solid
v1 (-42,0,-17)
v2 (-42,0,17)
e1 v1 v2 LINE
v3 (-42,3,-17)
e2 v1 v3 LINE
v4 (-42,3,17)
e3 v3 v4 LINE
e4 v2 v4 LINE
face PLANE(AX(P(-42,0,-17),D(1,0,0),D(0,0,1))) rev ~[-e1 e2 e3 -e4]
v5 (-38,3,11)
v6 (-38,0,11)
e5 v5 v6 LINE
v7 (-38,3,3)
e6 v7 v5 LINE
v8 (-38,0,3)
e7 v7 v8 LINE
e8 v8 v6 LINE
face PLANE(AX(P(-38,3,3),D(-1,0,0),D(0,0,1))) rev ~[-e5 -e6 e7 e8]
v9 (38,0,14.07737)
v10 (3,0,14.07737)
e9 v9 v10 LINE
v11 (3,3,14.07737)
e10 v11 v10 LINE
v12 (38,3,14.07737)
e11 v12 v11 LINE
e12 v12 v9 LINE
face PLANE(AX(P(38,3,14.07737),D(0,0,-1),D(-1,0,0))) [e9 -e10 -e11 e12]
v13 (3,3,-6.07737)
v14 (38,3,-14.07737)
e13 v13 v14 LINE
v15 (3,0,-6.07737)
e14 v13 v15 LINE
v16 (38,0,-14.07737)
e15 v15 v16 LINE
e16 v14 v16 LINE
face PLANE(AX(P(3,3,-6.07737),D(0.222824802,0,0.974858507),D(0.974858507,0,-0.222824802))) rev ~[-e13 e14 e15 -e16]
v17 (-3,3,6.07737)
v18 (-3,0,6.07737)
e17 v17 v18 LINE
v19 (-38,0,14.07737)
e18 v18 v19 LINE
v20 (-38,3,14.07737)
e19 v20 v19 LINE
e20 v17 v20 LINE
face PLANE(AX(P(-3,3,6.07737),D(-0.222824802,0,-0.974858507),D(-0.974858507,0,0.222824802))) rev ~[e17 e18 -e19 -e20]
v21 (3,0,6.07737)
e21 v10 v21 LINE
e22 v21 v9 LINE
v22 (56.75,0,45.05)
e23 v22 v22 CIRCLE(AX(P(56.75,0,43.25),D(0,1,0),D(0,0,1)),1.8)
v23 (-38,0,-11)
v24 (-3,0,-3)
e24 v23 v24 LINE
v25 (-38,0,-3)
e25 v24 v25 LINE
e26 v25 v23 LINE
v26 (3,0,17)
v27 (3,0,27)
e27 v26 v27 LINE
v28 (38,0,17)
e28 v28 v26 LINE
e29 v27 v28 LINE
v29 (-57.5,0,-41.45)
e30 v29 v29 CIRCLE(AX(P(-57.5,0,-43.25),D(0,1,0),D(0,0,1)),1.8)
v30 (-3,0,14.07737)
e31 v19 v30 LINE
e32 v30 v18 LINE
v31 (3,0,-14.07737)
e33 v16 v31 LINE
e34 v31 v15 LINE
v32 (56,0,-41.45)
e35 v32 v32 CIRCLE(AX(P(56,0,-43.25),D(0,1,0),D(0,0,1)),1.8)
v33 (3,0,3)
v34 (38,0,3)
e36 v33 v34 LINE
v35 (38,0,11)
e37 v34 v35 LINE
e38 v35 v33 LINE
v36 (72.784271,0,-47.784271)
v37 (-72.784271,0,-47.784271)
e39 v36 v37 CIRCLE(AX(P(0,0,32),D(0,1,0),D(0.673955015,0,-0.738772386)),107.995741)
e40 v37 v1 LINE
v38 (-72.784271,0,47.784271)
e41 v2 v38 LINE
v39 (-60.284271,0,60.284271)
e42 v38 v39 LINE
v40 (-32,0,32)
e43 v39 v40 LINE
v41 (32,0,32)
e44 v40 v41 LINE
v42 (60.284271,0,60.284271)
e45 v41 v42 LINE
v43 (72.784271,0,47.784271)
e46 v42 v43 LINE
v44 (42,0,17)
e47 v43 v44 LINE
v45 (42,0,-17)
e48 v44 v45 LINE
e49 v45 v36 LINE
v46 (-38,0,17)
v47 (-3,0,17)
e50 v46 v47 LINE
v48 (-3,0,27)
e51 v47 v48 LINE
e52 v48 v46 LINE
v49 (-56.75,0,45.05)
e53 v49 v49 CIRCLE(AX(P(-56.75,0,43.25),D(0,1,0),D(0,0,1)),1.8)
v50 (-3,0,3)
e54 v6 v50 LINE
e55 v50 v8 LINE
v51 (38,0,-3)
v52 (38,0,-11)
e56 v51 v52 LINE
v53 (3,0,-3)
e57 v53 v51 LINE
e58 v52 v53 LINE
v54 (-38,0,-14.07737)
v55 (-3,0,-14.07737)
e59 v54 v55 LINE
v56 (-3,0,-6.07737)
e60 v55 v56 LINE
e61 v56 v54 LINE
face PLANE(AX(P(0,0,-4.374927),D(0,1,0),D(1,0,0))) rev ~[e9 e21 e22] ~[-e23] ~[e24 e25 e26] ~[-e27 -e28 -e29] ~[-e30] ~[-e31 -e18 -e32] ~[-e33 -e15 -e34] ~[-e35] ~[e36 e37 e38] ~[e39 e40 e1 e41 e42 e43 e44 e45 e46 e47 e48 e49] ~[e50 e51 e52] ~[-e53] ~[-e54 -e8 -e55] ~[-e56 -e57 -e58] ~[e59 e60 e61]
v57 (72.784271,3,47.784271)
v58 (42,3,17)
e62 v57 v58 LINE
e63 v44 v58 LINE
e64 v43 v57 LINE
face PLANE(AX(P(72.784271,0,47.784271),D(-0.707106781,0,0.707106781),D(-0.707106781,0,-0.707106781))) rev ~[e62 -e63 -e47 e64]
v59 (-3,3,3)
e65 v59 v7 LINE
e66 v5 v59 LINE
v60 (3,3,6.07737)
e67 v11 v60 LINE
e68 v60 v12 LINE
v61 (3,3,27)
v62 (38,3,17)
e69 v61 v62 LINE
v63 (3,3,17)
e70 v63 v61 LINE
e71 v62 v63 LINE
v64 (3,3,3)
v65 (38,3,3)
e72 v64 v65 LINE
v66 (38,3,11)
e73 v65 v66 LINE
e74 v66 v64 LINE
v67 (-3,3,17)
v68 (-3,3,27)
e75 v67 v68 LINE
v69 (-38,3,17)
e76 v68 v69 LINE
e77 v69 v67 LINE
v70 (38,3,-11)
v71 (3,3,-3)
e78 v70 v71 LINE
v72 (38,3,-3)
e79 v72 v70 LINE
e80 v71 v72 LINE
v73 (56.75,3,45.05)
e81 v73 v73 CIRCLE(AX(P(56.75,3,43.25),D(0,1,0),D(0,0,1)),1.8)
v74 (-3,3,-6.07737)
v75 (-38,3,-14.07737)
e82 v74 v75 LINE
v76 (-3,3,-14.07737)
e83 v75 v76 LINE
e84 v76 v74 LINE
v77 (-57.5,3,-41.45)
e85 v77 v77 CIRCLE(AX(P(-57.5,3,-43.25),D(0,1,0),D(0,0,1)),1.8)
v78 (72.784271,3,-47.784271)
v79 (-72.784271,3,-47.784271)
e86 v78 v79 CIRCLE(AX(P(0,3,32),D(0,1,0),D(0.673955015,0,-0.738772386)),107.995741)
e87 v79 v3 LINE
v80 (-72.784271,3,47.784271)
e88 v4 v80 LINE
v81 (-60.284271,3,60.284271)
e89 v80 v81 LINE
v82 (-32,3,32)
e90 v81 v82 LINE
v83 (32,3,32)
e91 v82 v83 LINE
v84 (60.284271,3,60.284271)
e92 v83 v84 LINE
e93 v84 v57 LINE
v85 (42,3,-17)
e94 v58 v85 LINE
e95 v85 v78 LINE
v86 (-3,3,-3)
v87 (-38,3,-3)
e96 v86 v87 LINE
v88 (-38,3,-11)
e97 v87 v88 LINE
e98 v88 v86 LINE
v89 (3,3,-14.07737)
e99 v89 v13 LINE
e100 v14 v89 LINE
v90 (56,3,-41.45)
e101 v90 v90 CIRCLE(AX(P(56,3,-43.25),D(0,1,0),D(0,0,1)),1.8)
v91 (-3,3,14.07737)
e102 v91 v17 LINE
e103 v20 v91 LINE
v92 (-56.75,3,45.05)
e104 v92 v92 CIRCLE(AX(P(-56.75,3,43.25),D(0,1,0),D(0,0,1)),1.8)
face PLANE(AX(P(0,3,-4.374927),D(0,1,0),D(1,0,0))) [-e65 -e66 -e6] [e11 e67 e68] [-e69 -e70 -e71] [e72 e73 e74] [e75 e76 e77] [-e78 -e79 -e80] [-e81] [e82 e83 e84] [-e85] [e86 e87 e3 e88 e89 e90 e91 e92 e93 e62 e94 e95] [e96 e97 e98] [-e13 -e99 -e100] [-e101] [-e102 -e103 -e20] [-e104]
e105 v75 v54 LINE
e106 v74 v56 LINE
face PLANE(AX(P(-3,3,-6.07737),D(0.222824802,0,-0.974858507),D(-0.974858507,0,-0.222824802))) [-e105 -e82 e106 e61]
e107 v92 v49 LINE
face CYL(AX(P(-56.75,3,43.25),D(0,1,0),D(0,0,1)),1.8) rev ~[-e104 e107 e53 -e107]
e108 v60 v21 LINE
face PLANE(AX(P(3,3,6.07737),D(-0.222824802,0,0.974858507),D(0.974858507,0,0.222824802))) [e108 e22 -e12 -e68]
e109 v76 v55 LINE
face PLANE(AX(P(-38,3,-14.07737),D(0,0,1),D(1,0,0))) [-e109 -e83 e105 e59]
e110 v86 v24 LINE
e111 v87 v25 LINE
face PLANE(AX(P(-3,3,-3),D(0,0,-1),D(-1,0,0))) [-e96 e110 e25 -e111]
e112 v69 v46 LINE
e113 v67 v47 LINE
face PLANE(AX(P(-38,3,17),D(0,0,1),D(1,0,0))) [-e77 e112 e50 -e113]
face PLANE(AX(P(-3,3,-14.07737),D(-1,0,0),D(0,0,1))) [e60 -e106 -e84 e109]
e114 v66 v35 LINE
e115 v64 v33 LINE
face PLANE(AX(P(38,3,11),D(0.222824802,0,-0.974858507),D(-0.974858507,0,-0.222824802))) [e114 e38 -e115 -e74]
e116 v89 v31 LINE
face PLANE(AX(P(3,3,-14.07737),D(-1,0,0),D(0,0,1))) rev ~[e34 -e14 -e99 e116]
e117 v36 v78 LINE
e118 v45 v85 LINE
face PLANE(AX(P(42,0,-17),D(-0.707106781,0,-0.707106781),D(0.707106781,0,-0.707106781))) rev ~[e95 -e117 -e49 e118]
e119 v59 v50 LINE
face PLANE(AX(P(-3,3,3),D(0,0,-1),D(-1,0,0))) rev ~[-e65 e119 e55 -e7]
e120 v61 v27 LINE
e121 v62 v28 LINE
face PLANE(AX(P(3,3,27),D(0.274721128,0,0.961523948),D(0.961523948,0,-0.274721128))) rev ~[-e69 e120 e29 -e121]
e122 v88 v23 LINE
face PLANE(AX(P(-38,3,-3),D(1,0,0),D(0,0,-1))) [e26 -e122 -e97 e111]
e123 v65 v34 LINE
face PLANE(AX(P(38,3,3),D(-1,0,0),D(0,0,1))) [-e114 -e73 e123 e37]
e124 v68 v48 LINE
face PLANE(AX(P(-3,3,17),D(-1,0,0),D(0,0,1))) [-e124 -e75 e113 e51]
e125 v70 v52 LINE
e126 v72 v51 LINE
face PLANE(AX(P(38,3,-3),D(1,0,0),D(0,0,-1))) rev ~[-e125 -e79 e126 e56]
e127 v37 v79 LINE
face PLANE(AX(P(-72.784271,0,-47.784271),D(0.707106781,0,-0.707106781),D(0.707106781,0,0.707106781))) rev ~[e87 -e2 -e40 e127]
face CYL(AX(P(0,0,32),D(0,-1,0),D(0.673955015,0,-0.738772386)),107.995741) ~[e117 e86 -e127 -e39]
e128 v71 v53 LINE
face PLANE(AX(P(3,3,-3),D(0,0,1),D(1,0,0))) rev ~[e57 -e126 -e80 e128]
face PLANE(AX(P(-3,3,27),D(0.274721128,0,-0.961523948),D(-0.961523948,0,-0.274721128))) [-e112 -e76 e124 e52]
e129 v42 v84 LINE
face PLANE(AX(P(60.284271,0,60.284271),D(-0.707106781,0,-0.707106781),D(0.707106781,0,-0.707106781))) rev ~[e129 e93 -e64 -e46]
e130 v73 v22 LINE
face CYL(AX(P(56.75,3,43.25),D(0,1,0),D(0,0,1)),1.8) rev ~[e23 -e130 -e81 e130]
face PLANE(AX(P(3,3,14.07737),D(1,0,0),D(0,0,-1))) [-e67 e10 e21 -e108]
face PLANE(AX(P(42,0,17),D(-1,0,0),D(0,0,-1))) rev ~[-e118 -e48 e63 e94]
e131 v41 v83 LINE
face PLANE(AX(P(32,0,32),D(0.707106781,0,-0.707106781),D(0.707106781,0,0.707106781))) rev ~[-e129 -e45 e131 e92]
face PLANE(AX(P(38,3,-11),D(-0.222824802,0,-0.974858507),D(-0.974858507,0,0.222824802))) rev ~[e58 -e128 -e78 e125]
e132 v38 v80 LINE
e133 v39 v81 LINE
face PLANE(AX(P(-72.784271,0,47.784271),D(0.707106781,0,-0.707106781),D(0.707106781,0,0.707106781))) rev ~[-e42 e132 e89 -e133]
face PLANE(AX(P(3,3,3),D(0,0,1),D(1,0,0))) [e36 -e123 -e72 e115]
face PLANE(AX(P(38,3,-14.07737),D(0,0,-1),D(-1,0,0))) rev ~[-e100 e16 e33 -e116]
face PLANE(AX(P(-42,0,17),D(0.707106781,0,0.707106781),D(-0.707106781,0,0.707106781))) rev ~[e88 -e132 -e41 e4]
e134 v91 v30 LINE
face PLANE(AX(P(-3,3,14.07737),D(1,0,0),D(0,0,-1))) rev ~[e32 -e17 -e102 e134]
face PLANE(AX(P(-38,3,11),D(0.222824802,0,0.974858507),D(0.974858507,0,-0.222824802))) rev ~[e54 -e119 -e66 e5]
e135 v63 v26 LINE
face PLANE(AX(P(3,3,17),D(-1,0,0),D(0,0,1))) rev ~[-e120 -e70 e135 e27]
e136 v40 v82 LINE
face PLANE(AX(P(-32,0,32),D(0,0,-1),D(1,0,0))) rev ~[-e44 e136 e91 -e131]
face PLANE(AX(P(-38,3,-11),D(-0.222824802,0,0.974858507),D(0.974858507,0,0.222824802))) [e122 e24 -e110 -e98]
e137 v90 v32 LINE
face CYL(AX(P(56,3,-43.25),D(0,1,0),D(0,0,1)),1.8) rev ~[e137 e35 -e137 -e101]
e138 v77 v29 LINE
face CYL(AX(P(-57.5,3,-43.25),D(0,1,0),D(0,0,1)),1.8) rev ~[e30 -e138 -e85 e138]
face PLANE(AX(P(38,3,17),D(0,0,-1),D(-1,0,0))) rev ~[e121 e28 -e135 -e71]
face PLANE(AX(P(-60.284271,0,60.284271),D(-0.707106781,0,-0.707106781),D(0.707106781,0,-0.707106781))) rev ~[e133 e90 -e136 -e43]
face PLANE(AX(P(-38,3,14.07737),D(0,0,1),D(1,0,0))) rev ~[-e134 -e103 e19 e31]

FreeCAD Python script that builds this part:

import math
import FreeCAD as App
import Part
import Sketcher

doc = App.newDocument("Part")
body = doc.addObject("PartDesign::Body", "Body")

# Sketch on XZ plane
sketch1 = doc.addObject("Sketcher::SketchObject", "Sketch")
body.addObject(sketch1)
sketch1.AttachmentSupport = (doc.XZ_Plane, [""])
sketch1.MapMode = "FlatFace"
sketch1.addGeometry(Part.LineSegment(App.Vector(-42, -17, 0), App.Vector(-42, 17, 0)), False)
sketch1.addGeometry(Part.LineSegment(App.Vector(-42, 17, 0), App.Vector(-73, 48, 0)), False)
sketch1.addGeometry(Part.LineSegment(App.Vector(-73, 48, 0), App.Vector(-60, 60, 0)), False)
sketch1.addGeometry(Part.LineSegment(App.Vector(-60, 60, 0), App.Vector(-32, 32, 0)), False)
sketch1.addGeometry(Part.LineSegment(App.Vector(-32, 32, 0), App.Vector(32, 32, 0)), False)
sketch1.addGeometry(Part.LineSegment(App.Vector(32, 32, 0), App.Vector(60, 60, 0)), False)
sketch1.addGeometry(Part.LineSegment(App.Vector(60, 60, 0), App.Vector(73, 48, 0)), False)
sketch1.addGeometry(Part.LineSegment(App.Vector(73, 48, 0), App.Vector(42, 17, 0)), False)
sketch1.addGeometry(Part.LineSegment(App.Vector(42, 17, 0), App.Vector(42, -17, 0)), False)
sketch1.addGeometry(Part.LineSegment(App.Vector(42, -17, 0), App.Vector(73, -48, 0)), False)
sketch1.addGeometry(Part.ArcOfCircle(Part.Circle(App.Vector(0, 32, 0), App.Vector(0, 0, 1), 108), math.radians(-132), math.radians(-48)), False)
sketch1.addGeometry(Part.LineSegment(App.Vector(-73, -48, 0), App.Vector(-42, -17, 0)), False)
sketch1.addConstraint(Sketcher.Constraint("Coincident", 0, 2, 1, 1))
sketch1.addConstraint(Sketcher.Constraint("Coincident", 1, 2, 2, 1))
sketch1.addConstraint(Sketcher.Constraint("Coincident", 2, 2, 3, 1))
sketch1.addConstraint(Sketcher.Constraint("Coincident", 3, 2, 4, 1))
sketch1.addConstraint(Sketcher.Constraint("Coincident", 4, 2, 5, 1))
sketch1.addConstraint(Sketcher.Constraint("Coincident", 5, 2, 6, 1))
sketch1.addConstraint(Sketcher.Constraint("Coincident", 6, 2, 7, 1))
sketch1.addConstraint(Sketcher.Constraint("Coincident", 7, 2, 8, 1))
sketch1.addConstraint(Sketcher.Constraint("Coincident", 8, 2, 9, 1))
sketch1.addConstraint(Sketcher.Constraint("Coincident", 9, 2, 10, 2))
sketch1.addConstraint(Sketcher.Constraint("Coincident", 10, 1, 11, 1))
sketch1.addConstraint(Sketcher.Constraint("Coincident", 11, 2, 0, 1))
sketch1.addConstraint(Sketcher.Constraint("Vertical", 0))
sketch1.addConstraint(Sketcher.Constraint("Horizontal", 4))
sketch1.addConstraint(Sketcher.Constraint("Vertical", 8))
sketch1.addConstraint(Sketcher.Constraint("Symmetric", 0, 2, 8, 2, -1, 1))
sketch1.addConstraint(Sketcher.Constraint("Symmetric", 1, 2, 9, 2, -1, 1))
sketch1.addConstraint(Sketcher.Constraint("Symmetric", 6, 2, 10, 1, -1, 1))
sketch1.addConstraint(Sketcher.Constraint("Symmetric", 2, 2, 5, 2, -2))
sketch1.addConstraint(Sketcher.Constraint("Symmetric", 1, 2, 6, 2, -2))
sketch1.addConstraint(Sketcher.Constraint("Perpendicular", 1, 2))
sketch1.addConstraint(Sketcher.Constraint("Perpendicular", 2, 3))
sketch1.addConstraint(Sketcher.Constraint("Perpendicular", 3, 5))
sketch1.addConstraint(Sketcher.Constraint("Perpendicular", 5, 6))
sketch1.addConstraint(Sketcher.Constraint("Perpendicular", 6, 7))
sketch1.addConstraint(Sketcher.Constraint("Perpendicular", 9, 11))
sketch1.addConstraint(Sketcher.Constraint("Horizontal", 10, 3, 3, 2))
sketch1.addConstraint(Sketcher.Constraint("DistanceX", 4, 1, 4, 2, 64.0))
sketch1.addConstraint(Sketcher.Constraint("DistanceY", 0, 1, 0, 2, 34.0))
sketch1.addConstraint(Sketcher.Constraint("Distance", 3, 40.0))
sketch1.addConstraint(Sketcher.Constraint("DistanceY", -1, 1, 10, 3, 32.0))
sketch1.addConstraint(Sketcher.Constraint("DistanceX", 0, 2, -1, 1, 42.0))
pad1 = doc.addObject("PartDesign::Pad", "Pad")
body.addObject(pad1)
pad1.Profile = sketch1
pad1.Length = 3
pad1.Reversed = True

# Sketch on XZ plane
sketch2 = doc.addObject("Sketcher::SketchObject", "Sketch001")
body.addObject(sketch2)
sketch2.AttachmentSupport = (doc.XZ_Plane, [""])
sketch2.MapMode = "FlatFace"
sketch2.AttachmentOffset = App.Placement(App.Vector(0, 0, -3), App.Rotation())
sketch2.addGeometry(Part.Circle(App.Vector(-57.5, -43.2, 0), App.Vector(0, 0, 1), 1.8), False)
sketch2.addGeometry(Part.Circle(App.Vector(56, -43.2, 0), App.Vector(0, 0, 1), 1.8), False)
sketch2.addGeometry(Part.Circle(App.Vector(56.8, 43.2, 0), App.Vector(0, 0, 1), 1.8), False)
sketch2.addGeometry(Part.Circle(App.Vector(-56.8, 43.2, 0), App.Vector(0, 0, 1), 1.8), False)
sketch2.addConstraint(Sketcher.Constraint("Equal", 0, 1))
sketch2.addConstraint(Sketcher.Constraint("Equal", 1, 2))
sketch2.addConstraint(Sketcher.Constraint("Equal", 2, 3))
sketch2.addConstraint(Sketcher.Constraint("Symmetric", 2, 3, 3, 3, -2))
sketch2.addConstraint(Sketcher.Constraint("Horizontal", 0, 3, 1, 3))
sketch2.addConstraint(Sketcher.Constraint("Diameter", 0, 3.6))
sketch2.addConstraint(Sketcher.Constraint("DistanceX", -1, 1, 1, 3, 56.0))
sketch2.addConstraint(Sketcher.Constraint("DistanceX", 0, 3, -1, 1, 57.5))
sketch2.addConstraint(Sketcher.Constraint("DistanceY", 1, 3, 2, 3, 86.5))
sketch2.addConstraint(Sketcher.Constraint("DistanceX", 3, 3, 2, 3, 113.5))
sketch2.addConstraint(Sketcher.Constraint("DistanceY", 0, 3, -1, 1, 43.25))
pocket1 = doc.addObject("PartDesign::Pocket", "Pocket")
body.addObject(pocket1)
pocket1.Profile = sketch2
pocket1.Type = "ThroughAll"
pocket1.Reversed = True

# Sketch on XZ plane
sketch3 = doc.addObject("Sketcher::SketchObject", "Sketch002")
body.addObject(sketch3)
sketch3.AttachmentSupport = (doc.XZ_Plane, [""])
sketch3.MapMode = "FlatFace"
sketch3.AttachmentOffset = App.Placement(App.Vector(0, 0, -3), App.Rotation())
sketch3.addGeometry(Part.LineSegment(App.Vector(-3, -14, 0), App.Vector(-38, -14, 0)), False)
sketch3.addGeometry(Part.LineSegment(App.Vector(-38, -14, 0), App.Vector(-3, -6, 0)), False)
sketch3.addGeometry(Part.LineSegment(App.Vector(-3, -6, 0), App.Vector(-3, -14, 0)), False)
sketch3.addGeometry(Part.LineSegment(App.Vector(-3, -3, 0), App.Vector(-38, -11, 0)), False)
sketch3.addGeometry(Part.LineSegment(App.Vector(-38, -11, 0), App.Vector(-38, -3, 0)), False)
sketch3.addGeometry(Part.LineSegment(App.Vector(-38, -3, 0), App.Vector(-3, -3, 0)), False)
sketch3.addGeometry(Part.LineSegment(App.Vector(-3, 14, 0), App.Vector(-3, 6, 0)), False)
sketch3.addGeometry(Part.LineSegment(App.Vector(-3, 6, 0), App.Vector(-38, 14, 0)), False)
sketch3.addGeometry(Part.LineSegment(App.Vector(-38, 14, 0), App.Vector(-3, 14, 0)), False)
sketch3.addGeometry(Part.LineSegment(App.Vector(-3, 3, 0), App.Vector(-38, 3, 0)), False)
sketch3.addGeometry(Part.LineSegment(App.Vector(-38, 3, 0), App.Vector(-38, 11, 0)), False)
sketch3.addGeometry(Part.LineSegment(App.Vector(-38, 11, 0), App.Vector(-3, 3, 0)), False)
sketch3.addGeometry(Part.LineSegment(App.Vector(3, 14, 0), App.Vector(38, 14, 0)), False)
sketch3.addGeometry(Part.LineSegment(App.Vector(38, 14, 0), App.Vector(3, 6, 0)), False)
sketch3.addGeometry(Part.LineSegment(App.Vector(3, 6, 0), App.Vector(3, 14, 0)), False)
sketch3.addGeometry(Part.LineSegment(App.Vector(3, 3, 0), App.Vector(38, 11, 0)), False)
sketch3.addGeometry(Part.LineSegment(App.Vector(38, 11, 0), App.Vector(38, 3, 0)), False)
sketch3.addGeometry(Part.LineSegment(App.Vector(38, 3, 0), App.Vector(3, 3, 0)), False)
sketch3.addGeometry(Part.LineSegment(App.Vector(3, -3, 0), App.Vector(38, -3, 0)), False)
sketch3.addGeometry(Part.LineSegment(App.Vector(38, -3, 0), App.Vector(38, -11, 0)), False)
sketch3.addGeometry(Part.LineSegment(App.Vector(38, -11, 0), App.Vector(3, -3, 0)), False)
sketch3.addGeometry(Part.LineSegment(App.Vector(3, -14, 0), App.Vector(3, -6, 0)), False)
sketch3.addGeometry(Part.LineSegment(App.Vector(3, -6, 0), App.Vector(38, -14, 0)), False)
sketch3.addGeometry(Part.LineSegment(App.Vector(38, -14, 0), App.Vector(3, -14, 0)), False)
sketch3.addGeometry(Part.LineSegment(App.Vector(-3, 17, 0), App.Vector(-38, 17, 0)), False)
sketch3.addGeometry(Part.LineSegment(App.Vector(-38, 17, 0), App.Vector(-3, 27, 0)), False)
sketch3.addGeometry(Part.LineSegment(App.Vector(-3, 27, 0), App.Vector(-3, 17, 0)), False)
sketch3.addGeometry(Part.LineSegment(App.Vector(3, 17, 0), App.Vector(3, 27, 0)), False)
sketch3.addGeometry(Part.LineSegment(App.Vector(3, 27, 0), App.Vector(38, 17, 0)), False)
sketch3.addGeometry(Part.LineSegment(App.Vector(38, 17, 0), App.Vector(3, 17, 0)), False)
sketch3.addConstraint(Sketcher.Constraint("Coincident", 0, 2, 1, 1))
sketch3.addConstraint(Sketcher.Constraint("Coincident", 1, 2, 2, 1))
sketch3.addConstraint(Sketcher.Constraint("Coincident", 2, 2, 0, 1))
sketch3.addConstraint(Sketcher.Constraint("Coincident", 3, 2, 4, 1))
sketch3.addConstraint(Sketcher.Constraint("Coincident", 4, 2, 5, 1))
sketch3.addConstraint(Sketcher.Constraint("Coincident", 5, 2, 3, 1))
sketch3.addConstraint(Sketcher.Constraint("Coincident", 6, 2, 7, 1))
sketch3.addConstraint(Sketcher.Constraint("Coincident", 7, 2, 8, 1))
sketch3.addConstraint(Sketcher.Constraint("Coincident", 8, 2, 6, 1))
sketch3.addConstraint(Sketcher.Constraint("Coincident", 9, 2, 10, 1))
sketch3.addConstraint(Sketcher.Constraint("Coincident", 10, 2, 11, 1))
sketch3.addConstraint(Sketcher.Constraint("Coincident", 11, 2, 9, 1))
sketch3.addConstraint(Sketcher.Constraint("Coincident", 12, 2, 13, 1))
sketch3.addConstraint(Sketcher.Constraint("Coincident", 13, 2, 14, 1))
sketch3.addConstraint(Sketcher.Constraint("Coincident", 14, 2, 12, 1))
sketch3.addConstraint(Sketcher.Constraint("Coincident", 15, 2, 16, 1))
sketch3.addConstraint(Sketcher.Constraint("Coincident", 16, 2, 17, 1))
sketch3.addConstraint(Sketcher.Constraint("Coincident", 17, 2, 15, 1))
sketch3.addConstraint(Sketcher.Constraint("Coincident", 18, 2, 19, 1))
sketch3.addConstraint(Sketcher.Constraint("Coincident", 19, 2, 20, 1))
sketch3.addConstraint(Sketcher.Constraint("Coincident", 20, 2, 18, 1))
sketch3.addConstraint(Sketcher.Constraint("Coincident", 21, 2, 22, 1))
sketch3.addConstraint(Sketcher.Constraint("Coincident", 22, 2, 23, 1))
sketch3.addConstraint(Sketcher.Constraint("Coincident", 23, 2, 21, 1))
sketch3.addConstraint(Sketcher.Constraint("Coincident", 24, 2, 25, 1))
sketch3.addConstraint(Sketcher.Constraint("Coincident", 25, 2, 26, 1))
sketch3.addConstraint(Sketcher.Constraint("Coincident", 26, 2, 24, 1))
sketch3.addConstraint(Sketcher.Constraint("Coincident", 27, 2, 28, 1))
sketch3.addConstraint(Sketcher.Constraint("Coincident", 28, 2, 29, 1))
sketch3.addConstraint(Sketcher.Constraint("Coincident", 29, 2, 27, 1))
sketch3.addConstraint(Sketcher.Constraint("Horizontal", 0))
sketch3.addConstraint(Sketcher.Constraint("Vertical", 2))
sketch3.addConstraint(Sketcher.Constraint("Vertical", 4))
sketch3.addConstraint(Sketcher.Constraint("Horizontal", 5))
sketch3.addConstraint(Sketcher.Constraint("Vertical", 6))
sketch3.addConstraint(Sketcher.Constraint("Horizontal", 8))
sketch3.addConstraint(Sketcher.Constraint("Horizontal", 9))
sketch3.addConstraint(Sketcher.Constraint("Vertical", 10))
sketch3.addConstraint(Sketcher.Constraint("Horizontal", 12))
sketch3.addConstraint(Sketcher.Constraint("Vertical", 14))
sketch3.addConstraint(Sketcher.Constraint("Vertical", 16))
sketch3.addConstraint(Sketcher.Constraint("Horizontal", 17))
sketch3.addConstraint(Sketcher.Constraint("Horizontal", 18))
sketch3.addConstraint(Sketcher.Constraint("Vertical", 19))
sketch3.addConstraint(Sketcher.Constraint("Vertical", 21))
sketch3.addConstraint(Sketcher.Constraint("Horizontal", 23))
sketch3.addConstraint(Sketcher.Constraint("Horizontal", 24))
sketch3.addConstraint(Sketcher.Constraint("Vertical", 26))
sketch3.addConstraint(Sketcher.Constraint("Vertical", 27))
sketch3.addConstraint(Sketcher.Constraint("Horizontal", 29))
sketch3.addConstraint(Sketcher.Constraint("Symmetric", 0, 2, 12, 2, -1, 1))
sketch3.addConstraint(Sketcher.Constraint("Symmetric", 1, 2, 13, 2, -1, 1))
sketch3.addConstraint(Sketcher.Constraint("Symmetric", 3, 2, 15, 2, -1, 1))
sketch3.addConstraint(Sketcher.Constraint("Symmetric", 5, 2, 17, 2, -1, 1))
sketch3.addConstraint(Sketcher.Constraint("Symmetric", 9, 2, 18, 2, -1, 1))
sketch3.addConstraint(Sketcher.Constraint("Symmetric", 6, 2, 21, 2, -1, 1))
sketch3.addConstraint(Sketcher.Constraint("Symmetric", 7, 2, 22, 2, -1, 1))
sketch3.addConstraint(Sketcher.Constraint("Symmetric", 7, 2, 12, 2, -2))
sketch3.addConstraint(Sketcher.Constraint("Symmetric", 6, 2, 13, 2, -2))
sketch3.addConstraint(Sketcher.Constraint("Symmetric", 10, 2, 15, 2, -2))
sketch3.addConstraint(Sketcher.Constraint("Symmetric", 11, 2, 17, 2, -2))
sketch3.addConstraint(Sketcher.Constraint("Symmetric", 25, 2, 27, 2, -2))
sketch3.addConstraint(Sketcher.Constraint("Symmetric", 24, 2, 28, 2, -2))
sketch3.addConstraint(Sketcher.Constraint("Parallel", 1, 3))
sketch3.addConstraint(Sketcher.Constraint("Parallel", 11, 20))
sketch3.addConstraint(Sketcher.Constraint("Horizontal", 3, 2, 19, 2))
sketch3.addConstraint(Sketcher.Constraint("Vertical", 0, 2, 3, 2))
sketch3.addConstraint(Sketcher.Constraint("Vertical", 2, 2, 5, 2))
sketch3.addConstraint(Sketcher.Constraint("Vertical", 10, 2, 24, 2))
sketch3.addConstraint(Sketcher.Constraint("Vertical", 11, 2, 25, 2))
sketch3.addConstraint(Sketcher.Constraint("DistanceX", 0, 2, 0, 1, 35.0))
sketch3.addConstraint(Sketcher.Constraint("DistanceY", 2, 2, 2, 1, 8.0))
sketch3.addConstraint(Sketcher.Constraint("DistanceY", 26, 2, 26, 1, 10.0))
sketch3.addConstraint(Sketcher.Constraint("DistanceX", 0, 2, -1, 1, 38.0))
sketch3.addConstraint(Sketcher.Constraint("DistanceY", 3, 2, -1, 1, 11.0))
sketch3.addConstraint(Sketcher.Constraint("DistanceY", -1, 1, 24, 2, 17.0))
sketch3.addConstraint(Sketcher.Constraint("DistanceY", 0, 2, -1, 1, 14.07737))
pocket2 = doc.addObject("PartDesign::Pocket", "Pocket001")
body.addObject(pocket2)
pocket2.Profile = sketch3
pocket2.Type = "ThroughAll"
pocket2.Reversed = True

doc.recompute()
